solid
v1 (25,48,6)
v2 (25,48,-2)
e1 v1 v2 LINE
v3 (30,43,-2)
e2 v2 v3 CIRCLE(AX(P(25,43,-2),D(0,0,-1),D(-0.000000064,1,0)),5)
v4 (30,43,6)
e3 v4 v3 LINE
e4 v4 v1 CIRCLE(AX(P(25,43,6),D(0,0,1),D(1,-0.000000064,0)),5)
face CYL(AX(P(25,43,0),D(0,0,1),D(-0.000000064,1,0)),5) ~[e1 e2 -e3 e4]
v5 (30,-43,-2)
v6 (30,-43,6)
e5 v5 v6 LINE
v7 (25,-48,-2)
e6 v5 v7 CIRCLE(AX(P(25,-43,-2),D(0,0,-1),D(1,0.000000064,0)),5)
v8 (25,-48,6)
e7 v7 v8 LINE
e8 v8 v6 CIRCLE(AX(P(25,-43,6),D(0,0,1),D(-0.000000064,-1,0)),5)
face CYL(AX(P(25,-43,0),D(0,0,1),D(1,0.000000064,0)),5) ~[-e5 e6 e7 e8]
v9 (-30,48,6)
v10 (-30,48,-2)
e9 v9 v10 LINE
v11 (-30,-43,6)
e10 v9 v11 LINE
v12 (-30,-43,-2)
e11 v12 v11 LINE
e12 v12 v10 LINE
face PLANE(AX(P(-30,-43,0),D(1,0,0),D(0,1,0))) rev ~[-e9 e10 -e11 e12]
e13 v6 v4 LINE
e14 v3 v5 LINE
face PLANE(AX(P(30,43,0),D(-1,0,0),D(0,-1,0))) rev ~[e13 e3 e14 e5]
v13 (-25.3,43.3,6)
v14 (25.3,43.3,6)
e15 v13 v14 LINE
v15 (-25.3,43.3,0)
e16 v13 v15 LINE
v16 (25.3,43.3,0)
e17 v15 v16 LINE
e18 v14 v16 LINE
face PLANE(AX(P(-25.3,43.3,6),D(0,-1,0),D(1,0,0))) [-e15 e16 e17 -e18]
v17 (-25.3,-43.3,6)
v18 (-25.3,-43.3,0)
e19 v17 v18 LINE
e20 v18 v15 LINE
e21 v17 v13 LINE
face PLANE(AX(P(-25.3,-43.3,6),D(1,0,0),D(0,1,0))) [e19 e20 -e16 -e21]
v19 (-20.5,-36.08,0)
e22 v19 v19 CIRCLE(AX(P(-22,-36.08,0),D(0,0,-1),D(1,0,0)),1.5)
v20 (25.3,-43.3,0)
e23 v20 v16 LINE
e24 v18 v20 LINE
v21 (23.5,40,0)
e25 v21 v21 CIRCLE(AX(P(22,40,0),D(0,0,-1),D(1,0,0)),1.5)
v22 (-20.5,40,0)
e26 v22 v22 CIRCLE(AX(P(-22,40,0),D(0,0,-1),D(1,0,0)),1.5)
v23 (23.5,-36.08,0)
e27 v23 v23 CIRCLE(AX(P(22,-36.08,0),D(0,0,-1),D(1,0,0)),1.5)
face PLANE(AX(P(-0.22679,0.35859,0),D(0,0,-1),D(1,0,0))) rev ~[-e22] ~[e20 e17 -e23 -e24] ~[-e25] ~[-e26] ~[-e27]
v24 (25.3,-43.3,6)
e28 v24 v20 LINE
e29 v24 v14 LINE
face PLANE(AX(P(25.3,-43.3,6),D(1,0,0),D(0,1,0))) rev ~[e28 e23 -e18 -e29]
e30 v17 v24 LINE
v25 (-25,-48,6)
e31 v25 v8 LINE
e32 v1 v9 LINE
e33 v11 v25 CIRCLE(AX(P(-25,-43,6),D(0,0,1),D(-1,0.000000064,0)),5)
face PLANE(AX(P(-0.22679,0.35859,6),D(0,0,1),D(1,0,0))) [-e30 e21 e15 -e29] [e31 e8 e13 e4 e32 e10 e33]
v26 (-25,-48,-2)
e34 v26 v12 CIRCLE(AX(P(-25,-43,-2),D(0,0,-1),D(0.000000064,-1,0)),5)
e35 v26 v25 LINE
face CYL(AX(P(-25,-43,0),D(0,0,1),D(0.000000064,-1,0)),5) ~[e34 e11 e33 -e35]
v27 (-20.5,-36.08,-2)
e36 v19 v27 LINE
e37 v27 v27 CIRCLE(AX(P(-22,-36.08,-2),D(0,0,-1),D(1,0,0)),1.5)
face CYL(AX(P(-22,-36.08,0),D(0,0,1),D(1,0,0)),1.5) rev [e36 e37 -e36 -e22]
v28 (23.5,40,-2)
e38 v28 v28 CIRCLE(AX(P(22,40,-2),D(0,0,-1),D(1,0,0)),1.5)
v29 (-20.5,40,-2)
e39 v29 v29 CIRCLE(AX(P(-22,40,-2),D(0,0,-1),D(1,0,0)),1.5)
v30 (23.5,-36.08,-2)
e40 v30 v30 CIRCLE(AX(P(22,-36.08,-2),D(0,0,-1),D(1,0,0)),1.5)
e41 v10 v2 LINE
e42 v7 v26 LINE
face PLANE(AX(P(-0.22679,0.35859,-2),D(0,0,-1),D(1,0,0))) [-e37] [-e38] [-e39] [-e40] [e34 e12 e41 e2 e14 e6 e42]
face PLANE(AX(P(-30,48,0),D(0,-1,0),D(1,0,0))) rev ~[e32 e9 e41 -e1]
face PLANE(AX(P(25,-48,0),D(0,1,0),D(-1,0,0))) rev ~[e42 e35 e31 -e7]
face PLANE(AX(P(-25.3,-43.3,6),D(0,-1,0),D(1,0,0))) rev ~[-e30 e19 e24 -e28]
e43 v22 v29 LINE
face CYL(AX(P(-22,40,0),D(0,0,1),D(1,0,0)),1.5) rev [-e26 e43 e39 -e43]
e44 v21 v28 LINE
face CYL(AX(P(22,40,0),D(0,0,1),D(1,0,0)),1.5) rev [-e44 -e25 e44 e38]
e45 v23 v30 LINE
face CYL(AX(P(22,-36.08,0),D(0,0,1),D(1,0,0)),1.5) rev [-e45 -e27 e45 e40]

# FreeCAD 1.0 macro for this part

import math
import FreeCAD as App
import Part
import Sketcher
from FreeCAD import Vector


def add_polygon(sketch, points):
    """Adds a closed chain of lines whose ends are joined by coincident constraints."""
    first, n = sketch.GeometryCount, len(points)
    for a, b in zip(points, points[1:] + points[:1]):
        sketch.addGeometry(Part.LineSegment(App.Vector(*a, 0), App.Vector(*b, 0)), False)
    for i in range(n):
        sketch.addConstraint(Sketcher.Constraint("Coincident", first + i, 2, first + (i + 1) % n, 1))

doc = App.newDocument("Part")
body = doc.addObject("PartDesign::Body", "Body")

# Sketch on XY plane
sketch1 = doc.addObject("Sketcher::SketchObject", "Sketch")
body.addObject(sketch1)
sketch1.AttachmentSupport = (doc.XY_Plane, [""])
sketch1.MapMode = "FlatFace"
sketch1.addGeometry([
    Part.LineSegment(Vector(-25, -48, 0), Vector(25, -48, 0)),  # 0
    Part.ArcOfCircle(Part.Circle(Vector(25, -43, 0), Vector(0, 0, 1), 5), math.radians(-90.000004), math.radians(0.000004)),  # 1
    Part.LineSegment(Vector(30, -43, 0), Vector(30, 43, 0)),  # 2
    Part.ArcOfCircle(Part.Circle(Vector(25, 43, 0), Vector(0, 0, 1), 5), math.radians(-0.000004), math.radians(90.000004)),  # 3
    Part.LineSegment(Vector(25, 48, 0), Vector(-30, 48, 0)),  # 4
    Part.LineSegment(Vector(-30, 48, 0), Vector(-30, -43, 0)),  # 5
    Part.ArcOfCircle(Part.Circle(Vector(-25, -43, 0), Vector(0, 0, 1), 5), math.radians(179.999996), math.radians(270.000004)),  # 6
    Part.Circle(Vector(-22, -36.08, 0), Vector(0, 0, 1), 1.5),  # 7
    Part.Circle(Vector(22, -36.08, 0), Vector(0, 0, 1), 1.5),  # 8
    Part.Circle(Vector(-22, 40, 0), Vector(0, 0, 1), 1.5),  # 9
    Part.Circle(Vector(22, 40, 0), Vector(0, 0, 1), 1.5),  # 10
], False)
sketch1.addConstraint([
    Sketcher.Constraint("Tangent", 0, 2, 1, 1),
    Sketcher.Constraint("Tangent", 1, 2, 2, 1),
    Sketcher.Constraint("Tangent", 2, 2, 3, 1),
    Sketcher.Constraint("Tangent", 3, 2, 4, 1),
    Sketcher.Constraint("Coincident", 4, 2, 5, 1),
    Sketcher.Constraint("Tangent", 5, 2, 6, 1),
    Sketcher.Constraint("Tangent", 6, 2, 0, 1),
    Sketcher.Constraint("Horizontal", 0),
    Sketcher.Constraint("Vertical", 2),
    Sketcher.Constraint("Horizontal", 4),
    Sketcher.Constraint("Vertical", 5),
    Sketcher.Constraint("Equal", 1, 3),
    Sketcher.Constraint("Equal", 3, 6),
    Sketcher.Constraint("Equal", 7, 8),
    Sketcher.Constraint("Equal", 8, 9),
    Sketcher.Constraint("Equal", 9, 10),
    Sketcher.Constraint("Symmetric", 3, 3, 6, 3, -1, 1),
    Sketcher.Constraint("Symmetric", 7, 3, 8, 3, -2),
    Sketcher.Constraint("Symmetric", 9, 3, 10, 3, -2),
    Sketcher.Constraint("Vertical", 7, 3, 9, 3),
    Sketcher.Constraint("Diameter", 7, 3.0),
    Sketcher.Constraint("Radius", 1, 5.0),
    Sketcher.Constraint("DistanceX", 0, 1, 0, 2, 50.0),
    Sketcher.Constraint("DistanceY", 2, 1, 2, 2, 86.0),
    Sketcher.Constraint("DistanceX", 7, 3, -1, 1, 22.0),
    Sketcher.Constraint("DistanceY", -1, 1, 9, 3, 40.0),
    Sketcher.Constraint("DistanceY", 7, 3, -1, 1, 36.08),
])
pad1 = doc.addObject("PartDesign::Pad", "Pad")
body.addObject(pad1)
pad1.Profile = sketch1
pad1.Length = 6

# Sketch on XY plane
sketch2 = doc.addObject("Sketcher::SketchObject", "Sketch001")
body.addObject(sketch2)
sketch2.AttachmentSupport = (doc.XY_Plane, [""])
sketch2.MapMode = "FlatFace"
sketch2.AttachmentOffset = App.Placement(Vector(0, 0, 6), App.Rotation())
add_polygon(sketch2, [(-25.3, 43.3), (-25.3, -43.3), (25.3, -43.3), (25.3, 43.3)])  # lines 0-3
sketch2.addGeometry(Part.Circle(Vector(-22, -36.08, 0), Vector(0, 0, 1), 1.5), False)  # 4
sketch2.addGeometry(Part.Circle(Vector(22, -36.08, 0), Vector(0, 0, 1), 1.5), False)  # 5
sketch2.addGeometry(Part.Circle(Vector(-22, 40, 0), Vector(0, 0, 1), 1.5), False)  # 6
sketch2.addGeometry(Part.Circle(Vector(22, 40, 0), Vector(0, 0, 1), 1.5), False)  # 7
sketch2.addConstraint([
    Sketcher.Constraint("Vertical", 0),
    Sketcher.Constraint("Horizontal", 1),
    Sketcher.Constraint("Vertical", 2),
    Sketcher.Constraint("Horizontal", 3),
    Sketcher.Constraint("Equal", 4, 5),
    Sketcher.Constraint("Equal", 5, 6),
    Sketcher.Constraint("Equal", 6, 7),
    Sketcher.Constraint("Symmetric", 0, 2, 2, 2, -1, 1),
    Sketcher.Constraint("Symmetric", 4, 3, 5, 3, -2),
    Sketcher.Constraint("Symmetric", 6, 3, 7, 3, -2),
    Sketcher.Constraint("Vertical", 4, 3, 6, 3),
    Sketcher.Constraint("Diameter", 4, 3.0),
    Sketcher.Constraint("DistanceX", 1, 1, 1, 2, 50.6),
    Sketcher.Constraint("DistanceY", 0, 2, 0, 1, 86.6),
    Sketcher.Constraint("DistanceX", 4, 3, -1, 1, 22.0),
    Sketcher.Constraint("DistanceY", -1, 1, 6, 3, 40.0),
    Sketcher.Constraint("DistanceY", 4, 3, -1, 1, 36.08),
])
pocket1 = doc.addObject("PartDesign::Pocket", "Pocket")
body.addObject(pocket1)
pocket1.Profile = sketch2
pocket1.Length = 6

# Sketch on XY plane
sketch3 = doc.addObject("Sketcher::SketchObject", "Sketch002")
body.addObject(sketch3)
sketch3.AttachmentSupport = (doc.XY_Plane, [""])
sketch3.MapMode = "FlatFace"
sketch3.addGeometry([
    Part.LineSegment(Vector(-30, -43, 0), Vector(-30, 48, 0)),  # 0
    Part.LineSegment(Vector(-30, 48, 0), Vector(25, 48, 0)),  # 1
    Part.ArcOfCircle(Part.Circle(Vector(25, 43, 0), Vector(0, 0, 1), 5), math.radians(-0.000004), math.radians(90.000004)),  # 2
    Part.LineSegment(Vector(30, 43, 0), Vector(30, -43, 0)),  # 3
    Part.ArcOfCircle(Part.Circle(Vector(25, -43, 0), Vector(0, 0, 1), 5), math.radians(-90.000004), math.radians(0.000004)),  # 4
    Part.LineSegment(Vector(25, -48, 0), Vector(-25, -48, 0)),  # 5
    Part.ArcOfCircle(Part.Circle(Vector(-25, -43, 0), Vector(0, 0, 1), 5), math.radians(179.999996), math.radians(270.000004)),  # 6
    Part.Circle(Vector(-22, 40, 0), Vector(0, 0, 1), 1.5),  # 7
    Part.Circle(Vector(22, 40, 0), Vector(0, 0, 1), 1.5),  # 8
    Part.Circle(Vector(-22, -36.08, 0), Vector(0, 0, 1), 1.5),  # 9
    Part.Circle(Vector(22, -36.08, 0), Vector(0, 0, 1), 1.5),  # 10
], False)
sketch3.addConstraint([
    Sketcher.Constraint("Coincident", 0, 2, 1, 1),
    Sketcher.Constraint("Tangent", 1, 2, 2, 2),
    Sketcher.Constraint("Tangent", 2, 1, 3, 1),
    Sketcher.Constraint("Tangent", 3, 2, 4, 2),
    Sketcher.Constraint("Tangent", 4, 1, 5, 1),
    Sketcher.Constraint("Tangent", 5, 2, 6, 2),
    Sketcher.Constraint("Tangent", 6, 1, 0, 1),
    Sketcher.Constraint("Vertical", 0),
    Sketcher.Constraint("Horizontal", 1),
    Sketcher.Constraint("Vertical", 3),
    Sketcher.Constraint("Horizontal", 5),
    Sketcher.Constraint("Equal", 2, 4),
    Sketcher.Constraint("Equal", 4, 6),
    Sketcher.Constraint("Equal", 7, 8),
    Sketcher.Constraint("Equal", 8, 9),
    Sketcher.Constraint("Equal", 9, 10),
    Sketcher.Constraint("Symmetric", 2, 3, 6, 3, -1, 1),
    Sketcher.Constraint("Symmetric", 7, 3, 8, 3, -2),
    Sketcher.Constraint("Symmetric", 9, 3, 10, 3, -2),
    Sketcher.Constraint("Vertical", 7, 3, 9, 3),
    Sketcher.Constraint("Diameter", 7, 3.0),
    Sketcher.Constraint("Radius", 2, 5.0),
    Sketcher.Constraint("DistanceX", 1, 1, 1, 2, 55.0),
    Sketcher.Constraint("DistanceY", 0, 1, 0, 2, 91.0),
    Sketcher.Constraint("DistanceX", 7, 3, -1, 1, 22.0),
    Sketcher.Constraint("DistanceY", -1, 1, 7, 3, 40.0),
    Sketcher.Constraint("DistanceY", 9, 3, -1, 1, 36.08),
])
pad2 = doc.addObject("PartDesign::Pad", "Pad001")
body.addObject(pad2)
pad2.Profile = sketch3
pad2.Length = 2
pad2.Reversed = True

doc.recompute()
